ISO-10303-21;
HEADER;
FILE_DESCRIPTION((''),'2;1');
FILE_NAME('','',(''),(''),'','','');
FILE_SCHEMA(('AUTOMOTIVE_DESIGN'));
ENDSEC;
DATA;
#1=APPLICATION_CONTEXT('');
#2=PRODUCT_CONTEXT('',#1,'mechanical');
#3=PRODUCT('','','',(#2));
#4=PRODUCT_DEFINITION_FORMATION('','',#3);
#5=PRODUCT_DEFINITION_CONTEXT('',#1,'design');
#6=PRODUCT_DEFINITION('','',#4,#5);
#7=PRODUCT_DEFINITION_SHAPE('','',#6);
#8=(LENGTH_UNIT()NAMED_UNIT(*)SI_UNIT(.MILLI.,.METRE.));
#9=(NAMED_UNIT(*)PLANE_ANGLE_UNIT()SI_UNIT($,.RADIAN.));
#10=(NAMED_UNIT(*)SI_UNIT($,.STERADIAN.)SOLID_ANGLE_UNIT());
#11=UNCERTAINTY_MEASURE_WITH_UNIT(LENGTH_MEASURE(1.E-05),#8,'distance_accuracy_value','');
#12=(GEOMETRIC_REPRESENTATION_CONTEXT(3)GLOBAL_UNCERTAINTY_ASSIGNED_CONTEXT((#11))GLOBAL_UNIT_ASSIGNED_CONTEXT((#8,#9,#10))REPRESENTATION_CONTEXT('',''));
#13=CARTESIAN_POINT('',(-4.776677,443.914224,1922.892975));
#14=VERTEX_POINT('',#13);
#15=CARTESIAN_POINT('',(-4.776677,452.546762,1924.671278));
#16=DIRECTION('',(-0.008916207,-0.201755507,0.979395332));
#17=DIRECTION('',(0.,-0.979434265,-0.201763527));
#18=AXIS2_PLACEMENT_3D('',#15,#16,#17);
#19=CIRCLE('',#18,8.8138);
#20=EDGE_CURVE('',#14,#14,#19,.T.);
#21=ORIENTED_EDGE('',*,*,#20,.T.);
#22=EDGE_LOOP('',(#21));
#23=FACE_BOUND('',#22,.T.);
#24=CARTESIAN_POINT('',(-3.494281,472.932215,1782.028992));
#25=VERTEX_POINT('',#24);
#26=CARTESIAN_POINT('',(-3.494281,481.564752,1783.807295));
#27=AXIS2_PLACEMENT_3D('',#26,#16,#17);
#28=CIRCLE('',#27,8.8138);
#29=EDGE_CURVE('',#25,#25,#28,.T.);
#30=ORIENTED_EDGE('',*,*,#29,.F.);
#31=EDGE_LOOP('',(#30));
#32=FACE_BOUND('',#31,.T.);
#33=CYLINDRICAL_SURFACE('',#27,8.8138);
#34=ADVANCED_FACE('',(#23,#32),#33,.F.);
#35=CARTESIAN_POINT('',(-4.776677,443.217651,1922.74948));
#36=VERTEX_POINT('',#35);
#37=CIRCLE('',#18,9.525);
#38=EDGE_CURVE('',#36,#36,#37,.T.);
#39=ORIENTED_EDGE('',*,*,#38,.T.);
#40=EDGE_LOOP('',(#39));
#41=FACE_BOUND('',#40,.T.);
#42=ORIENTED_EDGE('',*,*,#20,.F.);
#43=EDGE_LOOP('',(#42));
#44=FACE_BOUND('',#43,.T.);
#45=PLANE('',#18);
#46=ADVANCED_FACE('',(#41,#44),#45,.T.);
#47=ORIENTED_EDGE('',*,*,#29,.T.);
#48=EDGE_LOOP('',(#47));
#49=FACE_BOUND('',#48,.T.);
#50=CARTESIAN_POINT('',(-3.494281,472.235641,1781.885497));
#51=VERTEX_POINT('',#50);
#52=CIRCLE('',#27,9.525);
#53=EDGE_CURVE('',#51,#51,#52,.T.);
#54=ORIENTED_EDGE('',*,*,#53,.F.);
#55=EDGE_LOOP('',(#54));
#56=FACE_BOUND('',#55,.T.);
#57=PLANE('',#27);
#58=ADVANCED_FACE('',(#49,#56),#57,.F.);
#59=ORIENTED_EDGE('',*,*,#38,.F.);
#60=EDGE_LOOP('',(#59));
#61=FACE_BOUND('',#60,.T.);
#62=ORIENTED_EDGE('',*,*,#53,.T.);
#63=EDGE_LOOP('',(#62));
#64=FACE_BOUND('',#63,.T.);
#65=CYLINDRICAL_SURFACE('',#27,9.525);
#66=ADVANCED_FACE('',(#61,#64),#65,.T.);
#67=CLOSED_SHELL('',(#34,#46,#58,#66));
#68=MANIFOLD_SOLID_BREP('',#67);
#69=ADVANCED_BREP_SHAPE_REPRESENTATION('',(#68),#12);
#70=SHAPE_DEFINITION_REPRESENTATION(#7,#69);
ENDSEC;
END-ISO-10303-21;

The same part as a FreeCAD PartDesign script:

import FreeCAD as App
import Part
import Sketcher

V = App.Vector
Q = App.Units.Quantity

doc = App.newDocument("Part")
params = doc.addObject("Spreadsheet::Sheet", "Params")
for row, (alias, value) in enumerate([
    ("sketch1_diameter", "0.75 in"),
    ("sketch1_diameter2", "0.694 in"),
    ("pad1_length", "2.0125 in"),
    ("pad1_length2", "3.65 in"),
], start=1):
    params.set(f"A{row}", alias)
    params.set(f"B{row}", "=" + value)
    params.setAlias(f"B{row}", alias)

body = doc.addObject("PartDesign::Body", "Body")

sketch1 = body.newObject("Sketcher::SketchObject", "Sketch")
sketch1.Placement = App.Placement(V(-4.320903, 462.859999, 1874.607036), App.Rotation(V(0.999960038, -0.001161747, 0.008864104), V(-0.000650572, 0.979435228, 0.201757803), V(-0.008916207, -0.201755507, 0.979395332), "ZXY"))
sketch1.addGeometry([
    Part.Circle(V(0, 0, 0), V(0, 0, 1), 9.525),
    Part.Circle(V(0, 0, 0), V(0, 0, 1), 8.8138),
], False)
sketch1.addConstraint([
    Sketcher.Constraint("Coincident", 0, 3, -1, 1),
    Sketcher.Constraint("Coincident", 1, 3, -1, 1),
    Sketcher.Constraint("Diameter", 0, Q("0.75 in")),
    Sketcher.Constraint("Diameter", 1, Q("0.694 in")),
])
sketch1.setExpression("Constraints[2]", "Params.sketch1_diameter")
sketch1.setExpression("Constraints[3]", "Params.sketch1_diameter2")
pad1 = body.newObject("PartDesign::Pad", "Pad")
pad1.Profile = sketch1
pad1.Type = "TwoLengths"
pad1.setExpression("Length", "Params.pad1_length")
pad1.setExpression("Length2", "Params.pad1_length2")

doc.recompute()
